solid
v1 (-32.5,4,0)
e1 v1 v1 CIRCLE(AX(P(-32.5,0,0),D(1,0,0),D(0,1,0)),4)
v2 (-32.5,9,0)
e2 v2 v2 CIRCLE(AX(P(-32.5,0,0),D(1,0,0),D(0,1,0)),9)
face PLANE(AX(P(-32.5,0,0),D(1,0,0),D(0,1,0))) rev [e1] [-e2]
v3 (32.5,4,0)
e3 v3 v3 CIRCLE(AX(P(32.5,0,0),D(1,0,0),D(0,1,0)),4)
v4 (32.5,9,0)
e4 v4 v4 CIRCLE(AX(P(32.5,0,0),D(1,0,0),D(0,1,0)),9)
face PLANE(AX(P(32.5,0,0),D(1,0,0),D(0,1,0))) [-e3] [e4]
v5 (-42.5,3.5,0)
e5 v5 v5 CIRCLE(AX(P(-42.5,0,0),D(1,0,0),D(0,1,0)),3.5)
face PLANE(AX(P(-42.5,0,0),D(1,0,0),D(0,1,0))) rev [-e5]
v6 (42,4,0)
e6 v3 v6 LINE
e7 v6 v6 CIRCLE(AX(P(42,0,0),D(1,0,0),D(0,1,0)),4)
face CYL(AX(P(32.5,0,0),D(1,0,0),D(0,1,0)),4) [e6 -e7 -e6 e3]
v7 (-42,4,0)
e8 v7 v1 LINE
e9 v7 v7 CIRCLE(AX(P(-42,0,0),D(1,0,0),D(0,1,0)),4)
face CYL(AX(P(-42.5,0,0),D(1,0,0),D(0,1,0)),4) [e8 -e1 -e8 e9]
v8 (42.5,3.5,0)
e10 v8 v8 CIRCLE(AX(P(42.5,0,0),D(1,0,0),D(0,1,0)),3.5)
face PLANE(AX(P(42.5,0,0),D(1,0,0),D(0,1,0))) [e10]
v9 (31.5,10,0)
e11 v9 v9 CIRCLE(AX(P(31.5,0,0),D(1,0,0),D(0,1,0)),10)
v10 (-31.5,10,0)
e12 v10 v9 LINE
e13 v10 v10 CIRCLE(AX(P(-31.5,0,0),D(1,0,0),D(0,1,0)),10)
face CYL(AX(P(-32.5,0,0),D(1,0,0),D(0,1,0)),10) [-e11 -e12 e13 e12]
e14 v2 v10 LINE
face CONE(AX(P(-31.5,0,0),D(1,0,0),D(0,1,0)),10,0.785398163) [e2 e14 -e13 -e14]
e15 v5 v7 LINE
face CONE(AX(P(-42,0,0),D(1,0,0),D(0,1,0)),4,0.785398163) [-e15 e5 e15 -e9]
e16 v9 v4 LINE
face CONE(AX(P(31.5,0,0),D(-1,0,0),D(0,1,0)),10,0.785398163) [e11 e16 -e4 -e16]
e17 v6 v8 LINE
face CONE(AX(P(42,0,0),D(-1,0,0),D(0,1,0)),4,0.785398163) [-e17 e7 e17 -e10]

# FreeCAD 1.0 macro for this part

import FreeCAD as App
import Part
import Sketcher
from FreeCAD import Vector


def edges_at(feature, points):
    """Names of the edges that pass closest to the given points."""
    edges = feature.Shape.Edges
    near = lambda p: min(range(len(edges)), key=lambda i: edges[i].distToShape(Part.Vertex(*p))[0])
    return sorted({f"Edge{near(p) + 1}" for p in points})

doc = App.newDocument("Part")
params = doc.addObject("Spreadsheet::Sheet", "Params")
for row, (alias, value) in enumerate([
    ("sketch1_width", "10 mm"),
    ("sketch1_width2", "65 mm"),
    ("sketch1_height", "4 mm"),
    ("revolution_angle", "360 deg"),
    ("chamfer_size", "0.5 mm"),
    ("chamfer2_size", "1 mm"),
], start=1):
    params.set(f"A{row}", alias)
    params.set(f"B{row}", "=" + value)
    params.setAlias(f"B{row}", alias)

body = doc.addObject("PartDesign::Body", "Body")

# Sketch on XY plane
sketch1 = doc.addObject("Sketcher::SketchObject", "Sketch")
body.addObject(sketch1)
sketch1.AttachmentSupport = (doc.XY_Plane, [""])
sketch1.MapMode = "FlatFace"
sketch1.addGeometry([
    Part.LineSegment(Vector(-42.5, 4, 0), Vector(-42.5, 0, 0)),  # 0
    Part.LineSegment(Vector(-42.5, 0, 0), Vector(42.5, 0, 0)),  # 1
    Part.LineSegment(Vector(42.5, 0, 0), Vector(42.5, 4, 0)),  # 2
    Part.LineSegment(Vector(42.5, 4, 0), Vector(32.5, 4, 0)),  # 3
    Part.LineSegment(Vector(32.5, 4, 0), Vector(32.5, 10, 0)),  # 4
    Part.LineSegment(Vector(32.5, 10, 0), Vector(-32.5, 10, 0)),  # 5
    Part.LineSegment(Vector(-32.5, 10, 0), Vector(-32.5, 4, 0)),  # 6
    Part.LineSegment(Vector(-32.5, 4, 0), Vector(-42.5, 4, 0)),  # 7
], False)
sketch1.addConstraint([
    Sketcher.Constraint("Coincident", 0, 2, 1, 1),
    Sketcher.Constraint("Coincident", 1, 2, 2, 1),
    Sketcher.Constraint("Coincident", 2, 2, 3, 1),
    Sketcher.Constraint("Coincident", 3, 2, 4, 1),
    Sketcher.Constraint("Coincident", 4, 2, 5, 1),
    Sketcher.Constraint("Coincident", 5, 2, 6, 1),
    Sketcher.Constraint("Coincident", 6, 2, 7, 1),
    Sketcher.Constraint("Coincident", 7, 2, 0, 1),
    Sketcher.Constraint("Vertical", 0),
    Sketcher.Constraint("Horizontal", 1),
    Sketcher.Constraint("Vertical", 2),
    Sketcher.Constraint("Horizontal", 3),
    Sketcher.Constraint("Vertical", 4),
    Sketcher.Constraint("Horizontal", 5),
    Sketcher.Constraint("Vertical", 6),
    Sketcher.Constraint("Horizontal", 7),
    Sketcher.Constraint("Symmetric", 0, 2, 1, 2, -1, 1),
    Sketcher.Constraint("Symmetric", 3, 2, 6, 2, -2),
    Sketcher.Constraint("DistanceX", 3, 2, 3, 1, 10.0),
    Sketcher.Constraint("DistanceX", 5, 2, 5, 1, 65.0),
    Sketcher.Constraint("DistanceY", -1, 1, 4, 2, 10.0),
    Sketcher.Constraint("DistanceY", 0, 2, 0, 1, 4.0),
])
sketch1.setExpression("Constraints[18]", "Params.sketch1_width")
sketch1.setExpression("Constraints[19]", "Params.sketch1_width2")
sketch1.setExpression("Constraints[21]", "Params.sketch1_height")
revolution = doc.addObject("PartDesign::Revolution", "Revolution")
body.addObject(revolution)
revolution.Profile = sketch1
revolution.ReferenceAxis = (sketch1, ["H_Axis"])
revolution.setExpression("Angle", "Params.revolution_angle")
doc.recompute()

chamfer = doc.addObject("PartDesign::Chamfer", "Chamfer")
body.addObject(chamfer)
chamfer.Base = (revolution, edges_at(revolution, [(-42.5, -4, 0), (42.5, -4, 0)]))
chamfer.setExpression("Size", "Params.chamfer_size")
doc.recompute()

chamfer2 = doc.addObject("PartDesign::Chamfer", "Chamfer001")
body.addObject(chamfer2)
chamfer2.Base = (chamfer, edges_at(chamfer, [(-32.5, -10, 0), (32.5, -10, 0)]))
chamfer2.setExpression("Size", "Params.chamfer2_size")

doc.recompute()
